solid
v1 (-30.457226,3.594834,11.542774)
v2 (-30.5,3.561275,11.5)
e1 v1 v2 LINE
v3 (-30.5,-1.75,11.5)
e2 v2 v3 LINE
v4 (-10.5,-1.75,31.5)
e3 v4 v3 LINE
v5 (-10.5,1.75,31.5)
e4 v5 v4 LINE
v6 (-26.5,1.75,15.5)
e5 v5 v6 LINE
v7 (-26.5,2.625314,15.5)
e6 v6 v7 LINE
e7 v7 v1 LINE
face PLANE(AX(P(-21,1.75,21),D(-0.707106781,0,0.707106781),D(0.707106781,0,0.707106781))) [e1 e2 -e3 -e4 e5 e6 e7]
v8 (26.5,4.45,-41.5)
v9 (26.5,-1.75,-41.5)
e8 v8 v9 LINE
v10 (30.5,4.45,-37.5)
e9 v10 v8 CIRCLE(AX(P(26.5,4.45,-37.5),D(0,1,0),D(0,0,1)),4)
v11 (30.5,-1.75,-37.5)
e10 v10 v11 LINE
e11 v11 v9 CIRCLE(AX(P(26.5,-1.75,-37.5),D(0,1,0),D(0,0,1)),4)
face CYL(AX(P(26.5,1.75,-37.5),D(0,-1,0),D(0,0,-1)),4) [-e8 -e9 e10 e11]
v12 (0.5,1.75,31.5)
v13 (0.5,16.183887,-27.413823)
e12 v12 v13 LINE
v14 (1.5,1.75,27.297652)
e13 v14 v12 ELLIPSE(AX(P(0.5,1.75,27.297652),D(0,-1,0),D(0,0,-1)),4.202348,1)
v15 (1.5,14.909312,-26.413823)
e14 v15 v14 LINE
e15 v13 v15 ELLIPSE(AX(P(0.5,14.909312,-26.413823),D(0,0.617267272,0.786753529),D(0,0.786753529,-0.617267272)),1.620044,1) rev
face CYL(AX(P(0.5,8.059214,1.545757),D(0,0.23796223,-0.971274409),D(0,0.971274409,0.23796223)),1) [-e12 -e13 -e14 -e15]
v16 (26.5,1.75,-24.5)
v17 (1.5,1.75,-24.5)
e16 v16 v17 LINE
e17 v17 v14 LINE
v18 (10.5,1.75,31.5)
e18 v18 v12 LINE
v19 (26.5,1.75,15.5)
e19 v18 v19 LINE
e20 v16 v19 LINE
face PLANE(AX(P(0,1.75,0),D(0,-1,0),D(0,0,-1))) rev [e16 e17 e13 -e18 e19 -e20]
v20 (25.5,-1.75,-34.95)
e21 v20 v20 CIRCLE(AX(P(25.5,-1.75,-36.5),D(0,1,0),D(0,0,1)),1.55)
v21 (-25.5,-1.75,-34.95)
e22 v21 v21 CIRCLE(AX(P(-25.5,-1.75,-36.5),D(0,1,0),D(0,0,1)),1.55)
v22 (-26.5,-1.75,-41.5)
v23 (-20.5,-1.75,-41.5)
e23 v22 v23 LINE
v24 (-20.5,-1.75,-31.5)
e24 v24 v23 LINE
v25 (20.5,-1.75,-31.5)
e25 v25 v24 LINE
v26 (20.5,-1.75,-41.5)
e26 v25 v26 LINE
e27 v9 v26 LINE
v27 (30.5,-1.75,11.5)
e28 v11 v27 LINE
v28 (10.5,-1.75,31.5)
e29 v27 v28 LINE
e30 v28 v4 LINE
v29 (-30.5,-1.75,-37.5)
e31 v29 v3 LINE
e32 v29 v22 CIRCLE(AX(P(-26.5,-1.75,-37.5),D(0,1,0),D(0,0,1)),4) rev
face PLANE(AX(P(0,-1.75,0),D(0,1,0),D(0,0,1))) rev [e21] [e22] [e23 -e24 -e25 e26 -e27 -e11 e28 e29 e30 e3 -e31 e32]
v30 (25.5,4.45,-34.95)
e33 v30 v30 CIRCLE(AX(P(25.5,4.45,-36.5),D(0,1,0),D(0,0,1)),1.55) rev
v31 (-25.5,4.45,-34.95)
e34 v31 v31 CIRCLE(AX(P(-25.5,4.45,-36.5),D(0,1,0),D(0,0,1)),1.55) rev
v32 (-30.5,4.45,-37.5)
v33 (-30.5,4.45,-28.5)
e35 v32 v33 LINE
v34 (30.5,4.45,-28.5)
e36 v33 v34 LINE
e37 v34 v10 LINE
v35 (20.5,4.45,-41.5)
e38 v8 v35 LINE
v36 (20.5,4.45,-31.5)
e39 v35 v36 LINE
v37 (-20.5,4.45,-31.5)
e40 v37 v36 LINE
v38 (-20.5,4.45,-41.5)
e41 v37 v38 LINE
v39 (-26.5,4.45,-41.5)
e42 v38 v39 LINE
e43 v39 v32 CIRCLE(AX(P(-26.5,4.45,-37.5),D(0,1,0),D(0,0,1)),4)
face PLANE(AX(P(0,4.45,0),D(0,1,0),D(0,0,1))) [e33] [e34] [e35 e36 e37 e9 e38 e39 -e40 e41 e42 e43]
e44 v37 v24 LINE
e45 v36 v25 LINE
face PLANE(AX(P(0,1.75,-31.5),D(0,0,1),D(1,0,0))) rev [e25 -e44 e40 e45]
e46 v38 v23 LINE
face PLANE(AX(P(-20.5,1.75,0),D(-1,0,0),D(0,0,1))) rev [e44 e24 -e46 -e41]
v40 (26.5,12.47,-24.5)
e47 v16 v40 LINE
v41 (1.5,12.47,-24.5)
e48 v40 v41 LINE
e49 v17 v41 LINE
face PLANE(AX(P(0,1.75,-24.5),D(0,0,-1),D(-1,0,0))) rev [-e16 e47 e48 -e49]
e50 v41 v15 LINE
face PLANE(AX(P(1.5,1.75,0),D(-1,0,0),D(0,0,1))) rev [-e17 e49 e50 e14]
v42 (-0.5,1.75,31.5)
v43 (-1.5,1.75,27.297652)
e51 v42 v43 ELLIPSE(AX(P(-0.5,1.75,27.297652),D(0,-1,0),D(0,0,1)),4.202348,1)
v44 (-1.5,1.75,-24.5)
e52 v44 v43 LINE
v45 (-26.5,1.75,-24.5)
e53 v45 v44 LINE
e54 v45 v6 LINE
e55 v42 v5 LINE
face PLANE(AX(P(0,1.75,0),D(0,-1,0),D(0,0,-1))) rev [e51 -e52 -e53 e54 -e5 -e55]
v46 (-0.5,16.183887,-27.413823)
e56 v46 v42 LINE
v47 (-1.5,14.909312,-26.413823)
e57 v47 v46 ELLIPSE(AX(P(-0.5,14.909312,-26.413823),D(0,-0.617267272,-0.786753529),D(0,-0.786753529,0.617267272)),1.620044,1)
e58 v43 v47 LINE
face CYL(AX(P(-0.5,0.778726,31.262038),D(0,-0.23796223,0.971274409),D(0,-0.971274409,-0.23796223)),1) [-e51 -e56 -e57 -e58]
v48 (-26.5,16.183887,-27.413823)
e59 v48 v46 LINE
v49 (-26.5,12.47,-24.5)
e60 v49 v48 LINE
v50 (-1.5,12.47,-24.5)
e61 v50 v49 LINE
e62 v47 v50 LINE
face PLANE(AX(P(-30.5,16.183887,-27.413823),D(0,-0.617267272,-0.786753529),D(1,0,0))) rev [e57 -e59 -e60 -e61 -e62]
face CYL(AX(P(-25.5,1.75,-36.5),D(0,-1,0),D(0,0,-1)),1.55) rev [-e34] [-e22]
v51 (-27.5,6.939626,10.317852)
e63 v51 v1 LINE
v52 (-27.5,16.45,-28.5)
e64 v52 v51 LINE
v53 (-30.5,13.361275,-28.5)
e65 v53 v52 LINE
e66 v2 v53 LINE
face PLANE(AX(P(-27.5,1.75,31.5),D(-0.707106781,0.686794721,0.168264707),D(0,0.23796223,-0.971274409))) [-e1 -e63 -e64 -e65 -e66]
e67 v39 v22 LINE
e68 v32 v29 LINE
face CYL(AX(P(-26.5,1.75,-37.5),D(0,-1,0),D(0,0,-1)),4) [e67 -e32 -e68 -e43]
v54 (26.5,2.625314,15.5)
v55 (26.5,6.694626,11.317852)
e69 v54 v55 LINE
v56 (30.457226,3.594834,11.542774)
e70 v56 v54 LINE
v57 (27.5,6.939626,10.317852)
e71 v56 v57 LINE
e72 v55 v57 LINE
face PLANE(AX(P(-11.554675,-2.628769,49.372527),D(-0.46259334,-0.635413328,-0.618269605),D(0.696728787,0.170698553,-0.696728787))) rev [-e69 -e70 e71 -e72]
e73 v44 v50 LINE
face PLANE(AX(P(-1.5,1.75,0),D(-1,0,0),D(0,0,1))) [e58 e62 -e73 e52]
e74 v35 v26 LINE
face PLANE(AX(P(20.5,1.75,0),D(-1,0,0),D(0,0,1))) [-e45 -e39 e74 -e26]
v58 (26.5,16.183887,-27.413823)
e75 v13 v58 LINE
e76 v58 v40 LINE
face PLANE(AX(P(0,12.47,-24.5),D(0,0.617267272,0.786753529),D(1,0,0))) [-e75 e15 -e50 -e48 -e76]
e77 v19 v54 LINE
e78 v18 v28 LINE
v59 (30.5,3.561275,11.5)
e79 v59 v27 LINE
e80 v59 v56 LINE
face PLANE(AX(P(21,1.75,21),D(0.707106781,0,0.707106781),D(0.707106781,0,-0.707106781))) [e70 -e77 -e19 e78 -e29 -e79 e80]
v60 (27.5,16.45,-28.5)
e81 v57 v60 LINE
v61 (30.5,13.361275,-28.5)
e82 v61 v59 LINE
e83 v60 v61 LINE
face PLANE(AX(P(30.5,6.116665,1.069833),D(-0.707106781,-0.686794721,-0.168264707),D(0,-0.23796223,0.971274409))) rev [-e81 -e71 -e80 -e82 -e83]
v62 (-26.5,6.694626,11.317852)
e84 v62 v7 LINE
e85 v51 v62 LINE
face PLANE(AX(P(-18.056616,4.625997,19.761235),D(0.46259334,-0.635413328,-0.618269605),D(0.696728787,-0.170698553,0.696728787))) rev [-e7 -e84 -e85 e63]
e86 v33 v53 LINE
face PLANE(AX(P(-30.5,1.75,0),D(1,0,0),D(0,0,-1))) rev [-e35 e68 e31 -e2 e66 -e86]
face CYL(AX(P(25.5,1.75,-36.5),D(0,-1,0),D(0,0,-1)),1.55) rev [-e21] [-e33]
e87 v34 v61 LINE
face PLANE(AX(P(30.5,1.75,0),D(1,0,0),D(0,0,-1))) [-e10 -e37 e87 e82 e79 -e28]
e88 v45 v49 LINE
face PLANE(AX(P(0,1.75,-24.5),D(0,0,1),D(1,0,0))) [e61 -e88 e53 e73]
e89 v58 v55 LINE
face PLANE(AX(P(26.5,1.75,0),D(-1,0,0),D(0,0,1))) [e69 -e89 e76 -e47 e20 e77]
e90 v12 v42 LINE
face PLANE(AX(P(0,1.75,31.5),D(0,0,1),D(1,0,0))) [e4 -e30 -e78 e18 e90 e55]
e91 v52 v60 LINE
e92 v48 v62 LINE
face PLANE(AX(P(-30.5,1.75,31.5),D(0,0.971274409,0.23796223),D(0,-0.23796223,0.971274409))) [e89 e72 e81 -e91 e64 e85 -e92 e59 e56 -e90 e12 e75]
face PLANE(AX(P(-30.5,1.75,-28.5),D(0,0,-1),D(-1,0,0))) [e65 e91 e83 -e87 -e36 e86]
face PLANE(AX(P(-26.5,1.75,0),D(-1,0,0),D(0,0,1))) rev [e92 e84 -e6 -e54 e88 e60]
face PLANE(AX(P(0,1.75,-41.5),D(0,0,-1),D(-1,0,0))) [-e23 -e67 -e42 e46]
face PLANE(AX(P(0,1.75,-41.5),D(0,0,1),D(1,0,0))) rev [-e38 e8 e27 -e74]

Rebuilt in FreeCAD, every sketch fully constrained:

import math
import FreeCAD as App
import Part
import Sketcher
Q = App.Units.Quantity


def edges_at(feature, points):
    """Names of the edges that pass closest to the given points."""
    edges = feature.Shape.Edges
    near = lambda p: min(range(len(edges)), key=lambda i: edges[i].distToShape(Part.Vertex(*p))[0])
    return sorted({f"Edge{near(p) + 1}" for p in points})

doc = App.newDocument("Part")
body = doc.addObject("PartDesign::Body", "Body")

sketch1 = body.newObject("Sketcher::SketchObject", "Sketch")
sketch1.AttachmentSupport = (doc.getObject("XZ_Plane"), [""])
sketch1.MapMode = "FlatFace"
sketch1.addGeometry([
    Part.LineSegment(App.Vector(-30.5, 11.5, 0), App.Vector(-10.5, 31.5, 0)),
    Part.LineSegment(App.Vector(-10.5, 31.5, 0), App.Vector(10.5, 31.5, 0)),
    Part.LineSegment(App.Vector(10.5, 31.5, 0), App.Vector(30.5, 11.5, 0)),
    Part.LineSegment(App.Vector(30.5, 11.5, 0), App.Vector(30.5, -37.5, 0)),
    Part.ArcOfCircle(Part.Circle(App.Vector(26.5, -37.5, 0), App.Vector(0, 0, 1), 4), math.radians(-90), math.radians(0)),
    Part.LineSegment(App.Vector(26.5, -41.5, 0), App.Vector(20.5, -41.5, 0)),
    Part.LineSegment(App.Vector(20.5, -41.5, 0), App.Vector(20.5, -31.5, 0)),
    Part.LineSegment(App.Vector(20.5, -31.5, 0), App.Vector(-20.5, -31.5, 0)),
    Part.LineSegment(App.Vector(-20.5, -31.5, 0), App.Vector(-20.5, -41.5, 0)),
    Part.LineSegment(App.Vector(-20.5, -41.5, 0), App.Vector(-26.5, -41.5, 0)),
    Part.ArcOfCircle(Part.Circle(App.Vector(-26.5, -37.5, 0), App.Vector(0, 0, 1), 4), math.radians(180), math.radians(270)),
    Part.LineSegment(App.Vector(-30.5, -37.5, 0), App.Vector(-30.5, 11.5, 0)),
    Part.Circle(App.Vector(-25.5, -36.5, 0), App.Vector(0, 0, 1), 1.6),
    Part.Circle(App.Vector(25.5, -36.5, 0), App.Vector(0, 0, 1), 1.6),
], False)
sketch1.addConstraint([
    Sketcher.Constraint("Coincident", 0, 2, 1, 1),
    Sketcher.Constraint("Coincident", 1, 2, 2, 1),
    Sketcher.Constraint("Coincident", 2, 2, 3, 1),
    Sketcher.Constraint("Tangent", 3, 2, 4, 2),
    Sketcher.Constraint("Tangent", 4, 1, 5, 1),
    Sketcher.Constraint("Coincident", 5, 2, 6, 1),
    Sketcher.Constraint("Coincident", 6, 2, 7, 1),
    Sketcher.Constraint("Coincident", 7, 2, 8, 1),
    Sketcher.Constraint("Coincident", 8, 2, 9, 1),
    Sketcher.Constraint("Tangent", 9, 2, 10, 2),
    Sketcher.Constraint("Tangent", 10, 1, 11, 1),
    Sketcher.Constraint("Coincident", 11, 2, 0, 1),
    Sketcher.Constraint("Horizontal", 1),
    Sketcher.Constraint("Vertical", 3),
    Sketcher.Constraint("Horizontal", 5),
    Sketcher.Constraint("Vertical", 6),
    Sketcher.Constraint("Horizontal", 7),
    Sketcher.Constraint("Vertical", 8),
    Sketcher.Constraint("Horizontal", 9),
    Sketcher.Constraint("Vertical", 11),
    Sketcher.Constraint("Equal", 4, 10),
    Sketcher.Constraint("Equal", 12, 13),
    Sketcher.Constraint("Symmetric", 4, 3, 10, 3, -2),
    Sketcher.Constraint("Symmetric", 12, 3, 13, 3, -2),
    Sketcher.Constraint("Perpendicular", 0, 2),
    Sketcher.Constraint("Horizontal", 2, 2, 11, 2),
    Sketcher.Constraint("Equal", 5, 9),
    Sketcher.Constraint("Equal", 0, 2),
    Sketcher.Constraint("Radius", 4, Q("4 mm")),
    Sketcher.Constraint("Diameter", 12, Q("3.1 mm")),
    Sketcher.Constraint("DistanceX", 1, 1, 1, 2, Q("21 mm")),
    Sketcher.Constraint("DistanceX", 5, 2, 5, 1, Q("6 mm")),
    Sketcher.Constraint("DistanceX", 7, 2, 7, 1, Q("41 mm")),
    Sketcher.Constraint("DistanceY", 3, 2, 3, 1, Q("49 mm")),
    Sketcher.Constraint("DistanceY", 6, 1, 6, 2, Q("10 mm")),
    Sketcher.Constraint("DistanceX", 10, 3, 12, 3, Q("1 mm")),
    Sketcher.Constraint("DistanceY", 10, 3, 12, 3, Q("1 mm")),
    Sketcher.Constraint("DistanceY", 4, 3, -1, 1, Q("37.5 mm")),
])
pad1 = body.newObject("PartDesign::Pad", "Pad")
pad1.Profile = sketch1
pad1.Length = 3.5
pad1.Midplane = True

sketch2 = body.newObject("Sketcher::SketchObject", "Sketch001")
sketch2.AttachmentSupport = (doc.getObject("XZ_Plane"), [""])
sketch2.MapMode = "FlatFace"
sketch2.AttachmentOffset = App.Placement(App.Vector(0, 0, -1.75), App.Rotation())
sketch2.addGeometry([
    Part.LineSegment(App.Vector(-20.5, -31.5, 0), App.Vector(-20.5, -41.5, 0)),
    Part.LineSegment(App.Vector(-20.5, -41.5, 0), App.Vector(-26.5, -41.5, 0)),
    Part.ArcOfCircle(Part.Circle(App.Vector(-26.5, -37.5, 0), App.Vector(0, 0, 1), 4), math.radians(180), math.radians(270)),
    Part.LineSegment(App.Vector(-30.5, -37.5, 0), App.Vector(-30.5, -28.5, 0)),
    Part.LineSegment(App.Vector(-30.5, -28.5, 0), App.Vector(30.5, -28.5, 0)),
    Part.LineSegment(App.Vector(30.5, -28.5, 0), App.Vector(30.5, -37.5, 0)),
    Part.ArcOfCircle(Part.Circle(App.Vector(26.5, -37.5, 0), App.Vector(0, 0, 1), 4), math.radians(-90), math.radians(0)),
    Part.LineSegment(App.Vector(26.5, -41.5, 0), App.Vector(20.5, -41.5, 0)),
    Part.LineSegment(App.Vector(20.5, -41.5, 0), App.Vector(20.5, -31.5, 0)),
    Part.LineSegment(App.Vector(20.5, -31.5, 0), App.Vector(-20.5, -31.5, 0)),
    Part.Circle(App.Vector(-25.5, -36.5, 0), App.Vector(0, 0, 1), 1.6),
    Part.Circle(App.Vector(25.5, -36.5, 0), App.Vector(0, 0, 1), 1.6),
], False)
sketch2.addConstraint([
    Sketcher.Constraint("Coincident", 0, 2, 1, 1),
    Sketcher.Constraint("Tangent", 1, 2, 2, 2),
    Sketcher.Constraint("Tangent", 2, 1, 3, 1),
    Sketcher.Constraint("Coincident", 3, 2, 4, 1),
    Sketcher.Constraint("Coincident", 4, 2, 5, 1),
    Sketcher.Constraint("Tangent", 5, 2, 6, 2),
    Sketcher.Constraint("Tangent", 6, 1, 7, 1),
    Sketcher.Constraint("Coincident", 7, 2, 8, 1),
    Sketcher.Constraint("Coincident", 8, 2, 9, 1),
    Sketcher.Constraint("Coincident", 9, 2, 0, 1),
    Sketcher.Constraint("Vertical", 0),
    Sketcher.Constraint("Horizontal", 1),
    Sketcher.Constraint("Vertical", 3),
    Sketcher.Constraint("Horizontal", 4),
    Sketcher.Constraint("Vertical", 5),
    Sketcher.Constraint("Horizontal", 7),
    Sketcher.Constraint("Vertical", 8),
    Sketcher.Constraint("Horizontal", 9),
    Sketcher.Constraint("Equal", 2, 6),
    Sketcher.Constraint("Equal", 10, 11),
    Sketcher.Constraint("Symmetric", 2, 3, 6, 3, -2),
    Sketcher.Constraint("Symmetric", 10, 3, 11, 3, -2),
    Sketcher.Constraint("Equal", 1, 7),
    Sketcher.Constraint("Radius", 2, Q("4 mm")),
    Sketcher.Constraint("Diameter", 10, Q("3.1 mm")),
    Sketcher.Constraint("DistanceX", 1, 2, 1, 1, Q("6 mm")),
    Sketcher.Constraint("DistanceX", 4, 1, 4, 2, Q("61 mm")),
    Sketcher.Constraint("DistanceY", 0, 2, 0, 1, Q("10 mm")),
    Sketcher.Constraint("DistanceY", 3, 1, 3, 2, Q("9 mm")),
    Sketcher.Constraint("DistanceX", 2, 3, 10, 3, Q("1 mm")),
    Sketcher.Constraint("DistanceY", 2, 3, 10, 3, Q("1 mm")),
    Sketcher.Constraint("DistanceY", 2, 3, -1, 1, Q("37.5 mm")),
])
pad2 = body.newObject("PartDesign::Pad", "Pad001")
pad2.Profile = sketch2
pad2.Length = 2.7
pad2.Reversed = True

sketch3 = body.newObject("Sketcher::SketchObject", "Sketch002")
sketch3.AttachmentSupport = (doc.getObject("YZ_Plane"), [""])
sketch3.MapMode = "FlatFace"
sketch3.addGeometry([
    Part.LineSegment(App.Vector(2, 32, 0), App.Vector(2, -28, 0)),
    Part.LineSegment(App.Vector(2, -28, 0), App.Vector(16, -28, 0)),
    Part.LineSegment(App.Vector(16, -28, 0), App.Vector(2, 32, 0)),
], False)
sketch3.addConstraint([
    Sketcher.Constraint("Coincident", 0, 2, 1, 1),
    Sketcher.Constraint("Coincident", 1, 2, 2, 1),
    Sketcher.Constraint("Coincident", 2, 2, 0, 1),
    Sketcher.Constraint("Vertical", 0),
    Sketcher.Constraint("Horizontal", 1),
    Sketcher.Constraint("DistanceY", 0, 2, 0, 1, Q("60 mm")),
    Sketcher.Constraint("DistanceX", 1, 1, 1, 2, Q("14.7 mm")),
    Sketcher.Constraint("DistanceY", 0, 2, -1, 1, Q("28.5 mm")),
    Sketcher.Constraint("DistanceX", -1, 1, 0, 2, Q("1.75 mm")),
])
pad3 = body.newObject("PartDesign::Pad", "Pad002")
pad3.Profile = sketch3
pad3.Type = "TwoLengths"
pad3.Length = 30.5
pad3.Length2 = 30.5

sketch4 = body.newObject("Sketcher::SketchObject", "Sketch003")
sketch4.AttachmentSupport = (doc.getObject("XZ_Plane"), [""])
sketch4.MapMode = "FlatFace"
sketch4.AttachmentOffset = App.Placement(App.Vector(0, 0, -16.45), App.Rotation())
sketch4.addGeometry([
    Part.LineSegment(App.Vector(-26, -24, 0), App.Vector(-2, -24, 0)),
    Part.LineSegment(App.Vector(-2, -24, 0), App.Vector(-2, 32, 0)),
    Part.LineSegment(App.Vector(-2, 32, 0), App.Vector(-30, 32, 0)),
    Part.LineSegment(App.Vector(-30, 32, 0), App.Vector(-30, 12, 0)),
    Part.LineSegment(App.Vector(-30, 12, 0), App.Vector(-26, 16, 0)),
    Part.LineSegment(App.Vector(-26, 16, 0), App.Vector(-26, -24, 0)),
    Part.LineSegment(App.Vector(2, 32, 0), App.Vector(2, -24, 0)),
    Part.LineSegment(App.Vector(2, -24, 0), App.Vector(26, -24, 0)),
    Part.LineSegment(App.Vector(26, -24, 0), App.Vector(26, 16, 0)),
    Part.LineSegment(App.Vector(26, 16, 0), App.Vector(30, 12, 0)),
    Part.LineSegment(App.Vector(30, 12, 0), App.Vector(30, 32, 0)),
    Part.LineSegment(App.Vector(30, 32, 0), App.Vector(2, 32, 0)),
], False)
sketch4.addConstraint([
    Sketcher.Constraint("Coincident", 0, 2, 1, 1),
    Sketcher.Constraint("Coincident", 1, 2, 2, 1),
    Sketcher.Constraint("Coincident", 2, 2, 3, 1),
    Sketcher.Constraint("Coincident", 3, 2, 4, 1),
    Sketcher.Constraint("Coincident", 4, 2, 5, 1),
    Sketcher.Constraint("Coincident", 5, 2, 0, 1),
    Sketcher.Constraint("Coincident", 6, 2, 7, 1),
    Sketcher.Constraint("Coincident", 7, 2, 8, 1),
    Sketcher.Constraint("Coincident", 8, 2, 9, 1),
    Sketcher.Constraint("Coincident", 9, 2, 10, 1),
    Sketcher.Constraint("Coincident", 10, 2, 11, 1),
    Sketcher.Constraint("Coincident", 11, 2, 6, 1),
    Sketcher.Constraint("Horizontal", 0),
    Sketcher.Constraint("Vertical", 1),
    Sketcher.Constraint("Horizontal", 2),
    Sketcher.Constraint("Vertical", 3),
    Sketcher.Constraint("Vertical", 5),
    Sketcher.Constraint("Vertical", 6),
    Sketcher.Constraint("Horizontal", 7),
    Sketcher.Constraint("Vertical", 8),
    Sketcher.Constraint("Vertical", 10),
    Sketcher.Constraint("Horizontal", 11),
    Sketcher.Constraint("Symmetric", 0, 2, 6, 2, -2),
    Sketcher.Constraint("Symmetric", 4, 2, 8, 2, -2),
    Sketcher.Constraint("Symmetric", 3, 2, 9, 2, -2),
    Sketcher.Constraint("Perpendicular", 4, 9),
    Sketcher.Constraint("Horizontal", 2, 2, 10, 2),
    Sketcher.Constraint("DistanceX", 0, 1, 0, 2, Q("25 mm")),
    Sketcher.Constraint("DistanceX", 2, 2, 2, 1, Q("29 mm")),
    Sketcher.Constraint("DistanceY", 1, 1, 1, 2, Q("56 mm")),
    Sketcher.Constraint("DistanceY", 3, 2, 3, 1, Q("20 mm")),
    Sketcher.Constraint("DistanceX", 0, 2, 6, 2, Q("3 mm")),
    Sketcher.Constraint("DistanceY", 0, 2, -1, 1, Q("24.5 mm")),
])
pocket1 = body.newObject("PartDesign::Pocket", "Pocket")
pocket1.Profile = sketch4
pocket1.Length = 14.7
pocket1.Reversed = True
doc.recompute()

chamfer = body.newObject("PartDesign::Chamfer", "Chamfer")
chamfer.Base = (pocket1, edges_at(pocket1, [
    (28.5, 6.16, 13.5),
    (14, 15.47, -24.5),
    (-14, 15.47, -24.5),
    (-28.5, 6.16, 13.5),
    (-30.5, 11.55, -8.5),
    (30.5, 11.55, -8.5),
]))
chamfer.Size = 3
doc.recompute()

fillet = body.newObject("PartDesign::Fillet", "Fillet")
fillet.Base = (chamfer, edges_at(chamfer, [(1.5, 8.967, 2.043), (-1.5, 8.967, 2.043)]))
fillet.Radius = 1

doc.recompute()
